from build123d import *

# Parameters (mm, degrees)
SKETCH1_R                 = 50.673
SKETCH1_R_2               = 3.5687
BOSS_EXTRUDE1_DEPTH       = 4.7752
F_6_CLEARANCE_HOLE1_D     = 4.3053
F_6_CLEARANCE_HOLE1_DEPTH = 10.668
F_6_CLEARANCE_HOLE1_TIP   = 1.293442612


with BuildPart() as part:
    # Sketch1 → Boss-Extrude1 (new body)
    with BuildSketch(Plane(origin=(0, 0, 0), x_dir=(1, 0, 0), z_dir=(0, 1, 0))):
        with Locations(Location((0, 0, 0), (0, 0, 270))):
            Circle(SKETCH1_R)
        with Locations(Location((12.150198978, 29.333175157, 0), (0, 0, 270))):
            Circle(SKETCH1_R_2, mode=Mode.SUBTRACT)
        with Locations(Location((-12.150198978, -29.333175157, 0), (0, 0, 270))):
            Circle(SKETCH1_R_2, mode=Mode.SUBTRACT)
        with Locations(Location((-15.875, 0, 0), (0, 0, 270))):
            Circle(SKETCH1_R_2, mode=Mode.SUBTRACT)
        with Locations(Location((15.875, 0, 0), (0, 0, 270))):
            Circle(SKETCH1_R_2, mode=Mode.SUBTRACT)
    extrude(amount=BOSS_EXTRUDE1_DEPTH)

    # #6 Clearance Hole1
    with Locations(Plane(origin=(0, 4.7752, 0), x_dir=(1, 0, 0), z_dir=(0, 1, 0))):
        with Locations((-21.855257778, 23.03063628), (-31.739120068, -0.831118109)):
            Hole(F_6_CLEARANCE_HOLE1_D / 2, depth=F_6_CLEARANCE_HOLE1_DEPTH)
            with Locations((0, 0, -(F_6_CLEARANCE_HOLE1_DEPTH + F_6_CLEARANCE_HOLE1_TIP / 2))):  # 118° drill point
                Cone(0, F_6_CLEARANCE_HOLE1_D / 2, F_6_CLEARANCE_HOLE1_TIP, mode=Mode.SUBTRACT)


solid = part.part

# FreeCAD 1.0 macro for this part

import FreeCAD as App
import Part
import Sketcher
from FreeCAD import Vector
Q = App.Units.Quantity

doc = App.newDocument("Part")
params = doc.addObject("Spreadsheet::Sheet", "Params")
for row, (alias, value) in enumerate([
    ("sketch1_diameter", "3.99 in"),
    ("sketch1_diameter2", "0.281 in"),
    ("pad1_length", "0.188 in"),
    ("hole_diameter", "0.1695 in"),
    ("hole_depth", "0.42 in"),
], start=1):
    params.set(f"A{row}", alias)
    params.set(f"B{row}", "=" + value)
    params.setAlias(f"B{row}", alias)

body = doc.addObject("PartDesign::Body", "Body")

sketch1 = body.newObject("Sketcher::SketchObject", "Sketch")
sketch1.AttachmentSupport = (doc.getObject("XZ_Plane"), [""])
sketch1.MapMode = "FlatFace"
sketch1.addGeometry([
    Part.Circle(Vector(0, 0, 0), Vector(0, 0, 1), 50.7),
    Part.Circle(Vector(-15.9, 0, 0), Vector(0, 0, 1), 3.6),
    Part.Circle(Vector(-12.2, 29.3, 0), Vector(0, 0, 1), 3.6),
    Part.Circle(Vector(12.2, -29.3, 0), Vector(0, 0, 1), 3.6),
    Part.Circle(Vector(15.9, 0, 0), Vector(0, 0, 1), 3.6),
], False)
sketch1.addConstraint([
    Sketcher.Constraint("Coincident", 0, 3, -1, 1),
    Sketcher.Constraint("Equal", 1, 2),
    Sketcher.Constraint("Equal", 2, 3),
    Sketcher.Constraint("Equal", 3, 4),
    Sketcher.Constraint("Symmetric", 2, 3, 3, 3, -1, 1),
    Sketcher.Constraint("Symmetric", 1, 3, 4, 3, -1, 1),
    Sketcher.Constraint("PointOnObject", 1, 3, -1),
    Sketcher.Constraint("Diameter", 0, Q("3.99 in")),
    Sketcher.Constraint("Diameter", 1, Q("0.281 in")),
    Sketcher.Constraint("DistanceX", 1, 3, 4, 3, Q("1.25 in")),
    Sketcher.Constraint("DistanceX", 2, 3, -1, 1, 12.150199),
    Sketcher.Constraint("DistanceY", 3, 3, 2, 3, 58.66635),
])
sketch1.setExpression("Constraints[7]", "Params.sketch1_diameter")
sketch1.setExpression("Constraints[8]", "Params.sketch1_diameter2")
pad1 = body.newObject("PartDesign::Pad", "Pad")
pad1.Profile = sketch1
pad1.setExpression("Length", "Params.pad1_length")
pad1.Reversed = True

sketch2 = body.newObject("Sketcher::SketchObject", "Sketch001")
sketch2.AttachmentSupport = (doc.getObject("XZ_Plane"), [""])
sketch2.MapMode = "FlatFace"
sketch2.AttachmentOffset = App.Placement(Vector(0, 0, -0.188 * 25.4), App.Rotation())
sketch2.addGeometry([
    Part.Circle(Vector(-21.9, -23, 0), Vector(0, 0, 1), 2.2),
    Part.Circle(Vector(-31.7, 0.8, 0), Vector(0, 0, 1), 2.2),
], False)
sketch2.addConstraint([
    Sketcher.Constraint("Equal", 0, 1),
    Sketcher.Constraint("Diameter", 0, Q("0.1695 in")),
    Sketcher.Constraint("DistanceX", 1, 3, -1, 1, 31.73912),
    Sketcher.Constraint("DistanceY", -1, 1, 1, 3, 0.831118),
    Sketcher.Constraint("DistanceX", 0, 3, -1, 1, 21.855258),
    Sketcher.Constraint("DistanceY", 0, 3, -1, 1, 23.030636),
])
doc.recompute()
hole = body.newObject("PartDesign::Hole", "Hole")
hole.Profile = sketch2
hole.ThreadType = "None"
hole.setExpression("Diameter", "Params.hole_diameter")
hole.DepthType = "Dimension"
hole.setExpression("Depth", "Params.hole_depth")
hole.DrillPoint = "Angled"
hole.DrillPointAngle = 118
hole.Reversed = True

doc.recompute()
